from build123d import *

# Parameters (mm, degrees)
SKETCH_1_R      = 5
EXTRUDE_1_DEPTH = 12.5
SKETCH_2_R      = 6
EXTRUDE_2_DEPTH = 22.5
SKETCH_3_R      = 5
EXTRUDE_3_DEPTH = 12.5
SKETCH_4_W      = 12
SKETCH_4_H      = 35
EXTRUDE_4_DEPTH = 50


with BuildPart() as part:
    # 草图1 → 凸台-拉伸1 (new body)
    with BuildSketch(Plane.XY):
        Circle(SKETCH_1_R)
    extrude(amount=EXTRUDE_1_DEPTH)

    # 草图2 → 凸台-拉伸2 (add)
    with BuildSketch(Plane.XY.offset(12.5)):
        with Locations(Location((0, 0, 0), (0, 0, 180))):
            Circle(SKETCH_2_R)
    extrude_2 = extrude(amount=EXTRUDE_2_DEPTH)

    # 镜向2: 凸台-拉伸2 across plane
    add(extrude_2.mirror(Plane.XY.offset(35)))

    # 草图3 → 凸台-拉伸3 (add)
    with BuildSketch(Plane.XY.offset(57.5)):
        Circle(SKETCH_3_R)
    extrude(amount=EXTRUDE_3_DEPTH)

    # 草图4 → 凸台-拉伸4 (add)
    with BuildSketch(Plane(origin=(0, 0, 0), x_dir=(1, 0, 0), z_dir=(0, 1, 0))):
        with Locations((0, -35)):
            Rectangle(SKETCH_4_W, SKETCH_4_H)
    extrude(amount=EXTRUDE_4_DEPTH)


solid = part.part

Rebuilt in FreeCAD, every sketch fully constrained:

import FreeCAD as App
import Part
import Sketcher
from FreeCAD import Vector
Q = App.Units.Quantity


def add_polygon(sketch, points):
    """Adds a closed chain of lines whose ends are joined by coincident constraints."""
    first, n = sketch.GeometryCount, len(points)
    for a, b in zip(points, points[1:] + points[:1]):
        sketch.addGeometry(Part.LineSegment(App.Vector(*a, 0), App.Vector(*b, 0)), False)
    for i in range(n):
        sketch.addConstraint(Sketcher.Constraint("Coincident", first + i, 2, first + (i + 1) % n, 1))

doc = App.newDocument("Part")
body = doc.addObject("PartDesign::Body", "Body")

# Sketch on XY plane
sketch1 = doc.addObject("Sketcher::SketchObject", "Sketch")
body.addObject(sketch1)
sketch1.AttachmentSupport = (doc.XY_Plane, [""])
sketch1.MapMode = "FlatFace"
sketch1.addGeometry(Part.Circle(Vector(0, 0, 0), Vector(0, 0, 1), 5), False)
sketch1.addConstraint([
    Sketcher.Constraint("Coincident", 0, 3, -1, 1),
    Sketcher.Constraint("Diameter", 0, Q("10 mm")),
])
pad1 = doc.addObject("PartDesign::Pad", "Pad")
body.addObject(pad1)
pad1.Profile = sketch1
pad1.Length = 12.5

# Sketch on XY plane
sketch2 = doc.addObject("Sketcher::SketchObject", "Sketch001")
body.addObject(sketch2)
sketch2.AttachmentSupport = (doc.XY_Plane, [""])
sketch2.MapMode = "FlatFace"
sketch2.AttachmentOffset = App.Placement(Vector(0, 0, 12.5), App.Rotation())
sketch2.addGeometry(Part.Circle(Vector(0, 0, 0), Vector(0, 0, 1), 6), False)
sketch2.addConstraint([
    Sketcher.Constraint("Coincident", 0, 3, -1, 1),
    Sketcher.Constraint("Diameter", 0, Q("12 mm")),
])
pad2 = doc.addObject("PartDesign::Pad", "Pad001")
body.addObject(pad2)
pad2.Profile = sketch2
pad2.Length = 22.5
doc.recompute()

datumplane = doc.addObject("PartDesign::Plane", "DatumPlane")
body.addObject(datumplane)
datumplane.AttachmentSupport = (doc.XY_Plane, [""])
datumplane.MapMode = "FlatFace"
datumplane.AttachmentOffset = App.Placement(Vector(0, 0, 35), App.Rotation())
mirrored = doc.addObject("PartDesign::Mirrored", "Mirrored")
body.addObject(mirrored)
mirrored.Originals = [pad2]
mirrored.MirrorPlane = (datumplane, [""])
body.Tip = mirrored

# Sketch on XY plane
sketch3 = doc.addObject("Sketcher::SketchObject", "Sketch002")
body.addObject(sketch3)
sketch3.AttachmentSupport = (doc.XY_Plane, [""])
sketch3.MapMode = "FlatFace"
sketch3.AttachmentOffset = App.Placement(Vector(0, 0, 57.5), App.Rotation())
sketch3.addGeometry(Part.Circle(Vector(0, 0, 0), Vector(0, 0, 1), 5), False)
sketch3.addConstraint([
    Sketcher.Constraint("Coincident", 0, 3, -1, 1),
    Sketcher.Constraint("Diameter", 0, Q("10 mm")),
])
pad3 = doc.addObject("PartDesign::Pad", "Pad002")
body.addObject(pad3)
pad3.Profile = sketch3
pad3.Length = 12.5

# Sketch on XZ plane
sketch4 = doc.addObject("Sketcher::SketchObject", "Sketch003")
body.addObject(sketch4)
sketch4.AttachmentSupport = (doc.XZ_Plane, [""])
sketch4.MapMode = "FlatFace"
add_polygon(sketch4, [(-6, 18), (-6, 52), (6, 52), (6, 18)])  # lines 0-3
sketch4.addConstraint([
    Sketcher.Constraint("Vertical", 0),
    Sketcher.Constraint("Horizontal", 1),
    Sketcher.Constraint("Vertical", 2),
    Sketcher.Constraint("Horizontal", 3),
    Sketcher.Constraint("DistanceX", 1, 1, 1, 2, Q("12 mm")),
    Sketcher.Constraint("DistanceY", 0, 1, 0, 2, Q("35 mm")),
    Sketcher.Constraint("DistanceX", 0, 2, -1, 1, Q("6 mm")),
    Sketcher.Constraint("DistanceY", -1, 1, 0, 2, Q("52.5 mm")),
])
pad4 = doc.addObject("PartDesign::Pad", "Pad003")
body.addObject(pad4)
pad4.Profile = sketch4
pad4.Length = 50
pad4.Reversed = True

doc.recompute()
